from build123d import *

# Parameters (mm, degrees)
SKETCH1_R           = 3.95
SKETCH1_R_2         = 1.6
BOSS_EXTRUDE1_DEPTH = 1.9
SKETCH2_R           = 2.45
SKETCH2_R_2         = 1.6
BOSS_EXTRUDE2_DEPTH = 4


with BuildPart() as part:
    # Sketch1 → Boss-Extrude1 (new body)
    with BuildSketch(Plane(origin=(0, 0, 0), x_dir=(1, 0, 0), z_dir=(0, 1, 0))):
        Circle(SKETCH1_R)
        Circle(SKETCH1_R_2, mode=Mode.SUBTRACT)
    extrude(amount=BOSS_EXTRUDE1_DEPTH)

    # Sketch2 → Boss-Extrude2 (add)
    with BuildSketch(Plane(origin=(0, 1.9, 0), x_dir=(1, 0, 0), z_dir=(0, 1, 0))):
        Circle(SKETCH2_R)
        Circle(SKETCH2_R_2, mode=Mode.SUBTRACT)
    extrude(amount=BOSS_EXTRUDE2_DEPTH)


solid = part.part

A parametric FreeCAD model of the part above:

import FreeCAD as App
import Part
import Sketcher
from FreeCAD import Vector
Q = App.Units.Quantity

doc = App.newDocument("Part")
body = doc.addObject("PartDesign::Body", "Body")

# Sketch on XZ plane
sketch1 = body.newObject("Sketcher::SketchObject", "Sketch")
sketch1.AttachmentSupport = (doc.getObject("XZ_Plane"), [""])
sketch1.MapMode = "FlatFace"
sketch1.addGeometry(Part.Circle(Vector(0, 0, 0), Vector(0, 0, 1), 4), False)
sketch1.addGeometry(Part.Circle(Vector(0, 0, 0), Vector(0, 0, 1), 1.6), False)
sketch1.addConstraint(Sketcher.Constraint("Coincident", 0, 3, -1, 1))
sketch1.addConstraint(Sketcher.Constraint("Coincident", 1, 3, -1, 1))
sketch1.addConstraint(Sketcher.Constraint("Diameter", 0, Q("7.9 mm")))
sketch1.addConstraint(Sketcher.Constraint("Diameter", 1, Q("3.2 mm")))
pad1 = body.newObject("PartDesign::Pad", "Pad")
pad1.Profile = sketch1
pad1.Length = 1.9
pad1.Reversed = True

# Sketch on XZ plane
sketch2 = body.newObject("Sketcher::SketchObject", "Sketch001")
sketch2.AttachmentSupport = (doc.getObject("XZ_Plane"), [""])
sketch2.MapMode = "FlatFace"
sketch2.AttachmentOffset = App.Placement(Vector(0, 0, -1.9), App.Rotation())
sketch2.addGeometry(Part.Circle(Vector(0, 0, 0), Vector(0, 0, 1), 2.5), False)
sketch2.addGeometry(Part.Circle(Vector(0, 0, 0), Vector(0, 0, 1), 1.6), False)
sketch2.addConstraint(Sketcher.Constraint("Coincident", 0, 3, -1, 1))
sketch2.addConstraint(Sketcher.Constraint("Coincident", 1, 3, -1, 1))
sketch2.addConstraint(Sketcher.Constraint("Diameter", 0, Q("4.9 mm")))
sketch2.addConstraint(Sketcher.Constraint("Diameter", 1, Q("3.2 mm")))
pad2 = body.newObject("PartDesign::Pad", "Pad001")
pad2.Profile = sketch2
pad2.Length = 4
pad2.Reversed = True

doc.recompute()
